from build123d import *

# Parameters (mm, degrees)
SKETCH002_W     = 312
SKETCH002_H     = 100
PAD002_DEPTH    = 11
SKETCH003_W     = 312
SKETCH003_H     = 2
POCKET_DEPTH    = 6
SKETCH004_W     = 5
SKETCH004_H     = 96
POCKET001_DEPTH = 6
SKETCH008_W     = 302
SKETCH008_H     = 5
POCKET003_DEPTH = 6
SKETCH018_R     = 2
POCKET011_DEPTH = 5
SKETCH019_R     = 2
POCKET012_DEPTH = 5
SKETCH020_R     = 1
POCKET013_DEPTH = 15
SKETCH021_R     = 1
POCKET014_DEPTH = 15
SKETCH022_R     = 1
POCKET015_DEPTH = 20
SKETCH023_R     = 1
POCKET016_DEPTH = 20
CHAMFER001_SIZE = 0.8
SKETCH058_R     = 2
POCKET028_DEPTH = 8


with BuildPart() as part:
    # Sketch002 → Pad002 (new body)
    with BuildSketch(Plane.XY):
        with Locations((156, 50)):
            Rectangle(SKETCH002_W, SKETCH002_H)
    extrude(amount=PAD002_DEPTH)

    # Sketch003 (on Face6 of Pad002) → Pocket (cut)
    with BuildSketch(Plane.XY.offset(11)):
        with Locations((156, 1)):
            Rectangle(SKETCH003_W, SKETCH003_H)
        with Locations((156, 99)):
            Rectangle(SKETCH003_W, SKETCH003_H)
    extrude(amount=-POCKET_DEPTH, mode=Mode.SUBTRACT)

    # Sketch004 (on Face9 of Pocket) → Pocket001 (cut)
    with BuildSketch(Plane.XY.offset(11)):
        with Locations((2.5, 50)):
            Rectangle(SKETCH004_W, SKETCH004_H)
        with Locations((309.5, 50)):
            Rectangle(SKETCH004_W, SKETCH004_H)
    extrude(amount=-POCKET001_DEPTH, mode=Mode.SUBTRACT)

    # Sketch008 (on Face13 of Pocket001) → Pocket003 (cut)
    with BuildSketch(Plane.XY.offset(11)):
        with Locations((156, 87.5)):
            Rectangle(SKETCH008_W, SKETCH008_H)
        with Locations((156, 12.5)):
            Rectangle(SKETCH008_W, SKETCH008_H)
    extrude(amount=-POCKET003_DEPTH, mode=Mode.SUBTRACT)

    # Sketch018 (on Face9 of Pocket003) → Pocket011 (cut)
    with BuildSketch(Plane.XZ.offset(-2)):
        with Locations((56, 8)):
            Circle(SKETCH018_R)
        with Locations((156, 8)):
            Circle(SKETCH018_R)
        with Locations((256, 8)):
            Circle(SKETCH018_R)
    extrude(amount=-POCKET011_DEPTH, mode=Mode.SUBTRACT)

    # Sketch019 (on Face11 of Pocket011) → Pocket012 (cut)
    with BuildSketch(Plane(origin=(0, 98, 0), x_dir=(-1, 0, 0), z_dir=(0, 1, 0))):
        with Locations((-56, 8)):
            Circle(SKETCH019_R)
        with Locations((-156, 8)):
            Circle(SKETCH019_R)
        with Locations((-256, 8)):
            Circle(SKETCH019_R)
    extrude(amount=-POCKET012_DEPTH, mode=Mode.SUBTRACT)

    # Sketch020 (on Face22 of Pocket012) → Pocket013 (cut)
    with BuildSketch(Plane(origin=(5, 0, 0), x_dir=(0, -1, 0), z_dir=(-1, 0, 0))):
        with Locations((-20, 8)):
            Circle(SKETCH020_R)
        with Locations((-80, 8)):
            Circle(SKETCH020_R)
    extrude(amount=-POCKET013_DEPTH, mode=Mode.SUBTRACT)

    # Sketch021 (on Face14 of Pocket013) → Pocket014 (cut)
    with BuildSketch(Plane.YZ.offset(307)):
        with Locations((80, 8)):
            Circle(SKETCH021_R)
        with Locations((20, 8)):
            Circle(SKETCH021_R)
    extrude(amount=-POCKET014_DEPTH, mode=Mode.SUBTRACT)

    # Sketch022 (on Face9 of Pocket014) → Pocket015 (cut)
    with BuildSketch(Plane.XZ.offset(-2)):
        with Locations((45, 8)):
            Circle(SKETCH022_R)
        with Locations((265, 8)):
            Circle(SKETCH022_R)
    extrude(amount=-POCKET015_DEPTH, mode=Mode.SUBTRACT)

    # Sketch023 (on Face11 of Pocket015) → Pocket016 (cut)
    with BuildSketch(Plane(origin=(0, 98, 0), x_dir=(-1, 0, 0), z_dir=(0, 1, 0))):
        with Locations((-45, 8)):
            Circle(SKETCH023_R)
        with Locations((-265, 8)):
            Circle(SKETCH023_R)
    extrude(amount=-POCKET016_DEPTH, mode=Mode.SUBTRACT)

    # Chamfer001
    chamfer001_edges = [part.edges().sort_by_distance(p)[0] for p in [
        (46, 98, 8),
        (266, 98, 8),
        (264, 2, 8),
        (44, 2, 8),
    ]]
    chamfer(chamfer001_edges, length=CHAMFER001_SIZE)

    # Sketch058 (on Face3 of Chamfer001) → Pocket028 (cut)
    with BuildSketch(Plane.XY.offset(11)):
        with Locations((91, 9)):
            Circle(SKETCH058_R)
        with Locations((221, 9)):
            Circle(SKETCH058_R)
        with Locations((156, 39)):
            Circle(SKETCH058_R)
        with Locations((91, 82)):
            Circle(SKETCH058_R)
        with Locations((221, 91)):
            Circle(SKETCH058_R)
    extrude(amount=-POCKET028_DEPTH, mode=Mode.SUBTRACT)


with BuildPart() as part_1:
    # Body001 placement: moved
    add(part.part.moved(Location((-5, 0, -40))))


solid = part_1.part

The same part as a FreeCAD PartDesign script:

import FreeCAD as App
import Part
import Sketcher
from FreeCAD import Vector
Q = App.Units.Quantity


def edges_at(feature, points):
    """Names of the edges that pass closest to the given points."""
    edges = feature.Shape.Edges
    near = lambda p: min(range(len(edges)), key=lambda i: edges[i].distToShape(Part.Vertex(*p))[0])
    return sorted({f"Edge{near(p) + 1}" for p in points})

doc = App.newDocument("Part")
body = doc.addObject("PartDesign::Body", "Body")

sketch1 = body.newObject("Sketcher::SketchObject", "Sketch")
sketch1.AttachmentSupport = (doc.getObject("XY_Plane"), [""])
sketch1.MapMode = "FlatFace"
sketch1.addGeometry([
    Part.LineSegment(Vector(0, 100, 0), Vector(0, 0, 0)),
    Part.LineSegment(Vector(0, 0, 0), Vector(312, 0, 0)),
    Part.LineSegment(Vector(312, 0, 0), Vector(312, 100, 0)),
    Part.LineSegment(Vector(312, 100, 0), Vector(0, 100, 0)),
], False)
sketch1.addConstraint([
    Sketcher.Constraint("Coincident", 0, 2, 1, 1),
    Sketcher.Constraint("Coincident", 1, 2, 2, 1),
    Sketcher.Constraint("Coincident", 2, 2, 3, 1),
    Sketcher.Constraint("Coincident", 3, 2, 0, 1),
    Sketcher.Constraint("Vertical", 0),
    Sketcher.Constraint("Horizontal", 1),
    Sketcher.Constraint("Vertical", 2),
    Sketcher.Constraint("Horizontal", 3),
    Sketcher.Constraint("Coincident", 0, 2, -1, 1),
    Sketcher.Constraint("DistanceX", 1, 1, 1, 2, Q("312 mm")),
    Sketcher.Constraint("DistanceY", 0, 2, 0, 1, Q("100 mm")),
])
pad1 = body.newObject("PartDesign::Pad", "Pad")
pad1.Profile = sketch1
pad1.Length = 11

sketch2 = body.newObject("Sketcher::SketchObject", "Sketch001")
sketch2.AttachmentSupport = (doc.getObject("XY_Plane"), [""])
sketch2.MapMode = "FlatFace"
sketch2.AttachmentOffset = App.Placement(Vector(0, 0, 11), App.Rotation())
sketch2.addGeometry([
    Part.LineSegment(Vector(0, 2, 0), Vector(0, 0, 0)),
    Part.LineSegment(Vector(0, 0, 0), Vector(312, 0, 0)),
    Part.LineSegment(Vector(312, 0, 0), Vector(312, 2, 0)),
    Part.LineSegment(Vector(312, 2, 0), Vector(0, 2, 0)),
    Part.LineSegment(Vector(0, 100, 0), Vector(0, 98, 0)),
    Part.LineSegment(Vector(0, 98, 0), Vector(312, 98, 0)),
    Part.LineSegment(Vector(312, 98, 0), Vector(312, 100, 0)),
    Part.LineSegment(Vector(312, 100, 0), Vector(0, 100, 0)),
], False)
sketch2.addConstraint([
    Sketcher.Constraint("Coincident", 0, 2, 1, 1),
    Sketcher.Constraint("Coincident", 1, 2, 2, 1),
    Sketcher.Constraint("Coincident", 2, 2, 3, 1),
    Sketcher.Constraint("Coincident", 3, 2, 0, 1),
    Sketcher.Constraint("Coincident", 4, 2, 5, 1),
    Sketcher.Constraint("Coincident", 5, 2, 6, 1),
    Sketcher.Constraint("Coincident", 6, 2, 7, 1),
    Sketcher.Constraint("Coincident", 7, 2, 4, 1),
    Sketcher.Constraint("Vertical", 0),
    Sketcher.Constraint("Horizontal", 1),
    Sketcher.Constraint("Vertical", 2),
    Sketcher.Constraint("Horizontal", 3),
    Sketcher.Constraint("Vertical", 4),
    Sketcher.Constraint("Horizontal", 5),
    Sketcher.Constraint("Vertical", 6),
    Sketcher.Constraint("Horizontal", 7),
    Sketcher.Constraint("Coincident", 0, 2, -1, 1),
    Sketcher.Constraint("PointOnObject", 4, 2, -2),
    Sketcher.Constraint("Vertical", 2, 2, 5, 2),
    Sketcher.Constraint("Equal", 2, 4),
    Sketcher.Constraint("DistanceX", 1, 1, 1, 2, Q("312 mm")),
    Sketcher.Constraint("DistanceY", 0, 2, 0, 1, Q("2 mm")),
    Sketcher.Constraint("DistanceY", -1, 1, 4, 2, Q("98 mm")),
])
pocket1 = body.newObject("PartDesign::Pocket", "Pocket")
pocket1.Profile = sketch2
pocket1.Length = 6

sketch3 = body.newObject("Sketcher::SketchObject", "Sketch002")
sketch3.AttachmentSupport = (doc.getObject("XY_Plane"), [""])
sketch3.MapMode = "FlatFace"
sketch3.AttachmentOffset = App.Placement(Vector(0, 0, 11), App.Rotation())
sketch3.addGeometry([
    Part.LineSegment(Vector(0, 98, 0), Vector(0, 2, 0)),
    Part.LineSegment(Vector(0, 2, 0), Vector(5, 2, 0)),
    Part.LineSegment(Vector(5, 2, 0), Vector(5, 98, 0)),
    Part.LineSegment(Vector(5, 98, 0), Vector(0, 98, 0)),
    Part.LineSegment(Vector(307, 98, 0), Vector(307, 2, 0)),
    Part.LineSegment(Vector(307, 2, 0), Vector(312, 2, 0)),
    Part.LineSegment(Vector(312, 2, 0), Vector(312, 98, 0)),
    Part.LineSegment(Vector(312, 98, 0), Vector(307, 98, 0)),
], False)
sketch3.addConstraint([
    Sketcher.Constraint("Coincident", 0, 2, 1, 1),
    Sketcher.Constraint("Coincident", 1, 2, 2, 1),
    Sketcher.Constraint("Coincident", 2, 2, 3, 1),
    Sketcher.Constraint("Coincident", 3, 2, 0, 1),
    Sketcher.Constraint("Coincident", 4, 2, 5, 1),
    Sketcher.Constraint("Coincident", 5, 2, 6, 1),
    Sketcher.Constraint("Coincident", 6, 2, 7, 1),
    Sketcher.Constraint("Coincident", 7, 2, 4, 1),
    Sketcher.Constraint("Vertical", 0),
    Sketcher.Constraint("Horizontal", 1),
    Sketcher.Constraint("Vertical", 2),
    Sketcher.Constraint("Horizontal", 3),
    Sketcher.Constraint("Vertical", 4),
    Sketcher.Constraint("Horizontal", 5),
    Sketcher.Constraint("Vertical", 6),
    Sketcher.Constraint("Horizontal", 7),
    Sketcher.Constraint("PointOnObject", 0, 2, -2),
    Sketcher.Constraint("Horizontal", 1, 2, 4, 2),
    Sketcher.Constraint("Horizontal", 3, 2, 6, 2),
    Sketcher.Constraint("Equal", 3, 5),
    Sketcher.Constraint("DistanceX", 1, 1, 1, 2, Q("5 mm")),
    Sketcher.Constraint("DistanceY", 0, 2, 0, 1, Q("96 mm")),
    Sketcher.Constraint("DistanceY", -1, 1, 0, 2, Q("2 mm")),
    Sketcher.Constraint("DistanceX", -1, 1, 4, 2, Q("307 mm")),
])
pocket2 = body.newObject("PartDesign::Pocket", "Pocket001")
pocket2.Profile = sketch3
pocket2.Length = 6

sketch4 = body.newObject("Sketcher::SketchObject", "Sketch003")
sketch4.AttachmentSupport = (doc.getObject("XY_Plane"), [""])
sketch4.MapMode = "FlatFace"
sketch4.AttachmentOffset = App.Placement(Vector(0, 0, 11), App.Rotation())
sketch4.addGeometry([
    Part.LineSegment(Vector(5, 90, 0), Vector(5, 85, 0)),
    Part.LineSegment(Vector(5, 85, 0), Vector(307, 85, 0)),
    Part.LineSegment(Vector(307, 85, 0), Vector(307, 90, 0)),
    Part.LineSegment(Vector(307, 90, 0), Vector(5, 90, 0)),
    Part.LineSegment(Vector(5, 15, 0), Vector(5, 10, 0)),
    Part.LineSegment(Vector(5, 10, 0), Vector(307, 10, 0)),
    Part.LineSegment(Vector(307, 10, 0), Vector(307, 15, 0)),
    Part.LineSegment(Vector(307, 15, 0), Vector(5, 15, 0)),
], False)
sketch4.addConstraint([
    Sketcher.Constraint("Coincident", 0, 2, 1, 1),
    Sketcher.Constraint("Coincident", 1, 2, 2, 1),
    Sketcher.Constraint("Coincident", 2, 2, 3, 1),
    Sketcher.Constraint("Coincident", 3, 2, 0, 1),
    Sketcher.Constraint("Coincident", 4, 2, 5, 1),
    Sketcher.Constraint("Coincident", 5, 2, 6, 1),
    Sketcher.Constraint("Coincident", 6, 2, 7, 1),
    Sketcher.Constraint("Coincident", 7, 2, 4, 1),
    Sketcher.Constraint("Vertical", 0),
    Sketcher.Constraint("Horizontal", 1),
    Sketcher.Constraint("Vertical", 2),
    Sketcher.Constraint("Horizontal", 3),
    Sketcher.Constraint("Vertical", 4),
    Sketcher.Constraint("Horizontal", 5),
    Sketcher.Constraint("Vertical", 6),
    Sketcher.Constraint("Horizontal", 7),
    Sketcher.Constraint("Vertical", 3, 2, 4, 2),
    Sketcher.Constraint("Vertical", 2, 2, 5, 2),
    Sketcher.Constraint("Equal", 2, 4),
    Sketcher.Constraint("DistanceX", 1, 1, 1, 2, Q("302 mm")),
    Sketcher.Constraint("DistanceY", 0, 2, 0, 1, Q("5 mm")),
    Sketcher.Constraint("DistanceX", -1, 1, 0, 2, Q("5 mm")),
    Sketcher.Constraint("DistanceY", -1, 1, 0, 2, Q("85 mm")),
    Sketcher.Constraint("DistanceY", -1, 1, 4, 2, Q("10 mm")),
])
pocket3 = body.newObject("PartDesign::Pocket", "Pocket002")
pocket3.Profile = sketch4
pocket3.Length = 6

sketch5 = body.newObject("Sketcher::SketchObject", "Sketch004")
sketch5.AttachmentSupport = (doc.getObject("XZ_Plane"), [""])
sketch5.MapMode = "FlatFace"
sketch5.AttachmentOffset = App.Placement(Vector(0, 0, -2), App.Rotation())
sketch5.addGeometry([
    Part.Circle(Vector(56, 8, 0), Vector(0, 0, 1), 2),
    Part.Circle(Vector(156, 8, 0), Vector(0, 0, 1), 2),
    Part.Circle(Vector(256, 8, 0), Vector(0, 0, 1), 2),
], False)
sketch5.addConstraint([
    Sketcher.Constraint("Equal", 0, 1),
    Sketcher.Constraint("Equal", 1, 2),
    Sketcher.Constraint("Horizontal", 0, 3, 1, 3),
    Sketcher.Constraint("Horizontal", 1, 3, 2, 3),
    Sketcher.Constraint("Diameter", 0, Q("4 mm")),
    Sketcher.Constraint("DistanceX", -1, 1, 0, 3, Q("56 mm")),
    Sketcher.Constraint("DistanceY", -1, 1, 0, 3, Q("8 mm")),
    Sketcher.Constraint("DistanceX", -1, 1, 1, 3, Q("156 mm")),
    Sketcher.Constraint("DistanceX", -1, 1, 2, 3, Q("256 mm")),
])
pocket4 = body.newObject("PartDesign::Pocket", "Pocket003")
pocket4.Profile = sketch5
pocket4.Length = 5

sketch6 = body.newObject("Sketcher::SketchObject", "Sketch005")
sketch6.AttachmentSupport = (doc.getObject("XZ_Plane"), [""])
sketch6.MapMode = "FlatFace"
sketch6.AttachmentOffset = App.Placement(Vector(0, 0, -98), App.Rotation())
sketch6.addGeometry([
    Part.Circle(Vector(56, 8, 0), Vector(0, 0, 1), 2),
    Part.Circle(Vector(156, 8, 0), Vector(0, 0, 1), 2),
    Part.Circle(Vector(256, 8, 0), Vector(0, 0, 1), 2),
], False)
sketch6.addConstraint([
    Sketcher.Constraint("Equal", 0, 1),
    Sketcher.Constraint("Equal", 1, 2),
    Sketcher.Constraint("Horizontal", 0, 3, 1, 3),
    Sketcher.Constraint("Horizontal", 1, 3, 2, 3),
    Sketcher.Constraint("Diameter", 0, Q("4 mm")),
    Sketcher.Constraint("DistanceX", -1, 1, 0, 3, Q("56 mm")),
    Sketcher.Constraint("DistanceY", -1, 1, 0, 3, Q("8 mm")),
    Sketcher.Constraint("DistanceX", -1, 1, 1, 3, Q("156 mm")),
    Sketcher.Constraint("DistanceX", -1, 1, 2, 3, Q("256 mm")),
])
pocket5 = body.newObject("PartDesign::Pocket", "Pocket004")
pocket5.Profile = sketch6
pocket5.Length = 5
pocket5.Reversed = True

sketch7 = body.newObject("Sketcher::SketchObject", "Sketch006")
sketch7.AttachmentSupport = (doc.getObject("YZ_Plane"), [""])
sketch7.MapMode = "FlatFace"
sketch7.AttachmentOffset = App.Placement(Vector(0, 0, 5), App.Rotation())
sketch7.addGeometry([
    Part.Circle(Vector(20, 8, 0), Vector(0, 0, 1), 1),
    Part.Circle(Vector(80, 8, 0), Vector(0, 0, 1), 1),
], False)
sketch7.addConstraint([
    Sketcher.Constraint("Equal", 0, 1),
    Sketcher.Constraint("Horizontal", 0, 3, 1, 3),
    Sketcher.Constraint("Diameter", 0, Q("2 mm")),
    Sketcher.Constraint("DistanceX", -1, 1, 0, 3, Q("20 mm")),
    Sketcher.Constraint("DistanceY", -1, 1, 0, 3, Q("8 mm")),
    Sketcher.Constraint("DistanceX", -1, 1, 1, 3, Q("80 mm")),
])
pocket6 = body.newObject("PartDesign::Pocket", "Pocket005")
pocket6.Profile = sketch7
pocket6.Length = 15
pocket6.Reversed = True

sketch8 = body.newObject("Sketcher::SketchObject", "Sketch007")
sketch8.AttachmentSupport = (doc.getObject("YZ_Plane"), [""])
sketch8.MapMode = "FlatFace"
sketch8.AttachmentOffset = App.Placement(Vector(0, 0, 307), App.Rotation())
sketch8.addGeometry([
    Part.Circle(Vector(80, 8, 0), Vector(0, 0, 1), 1),
    Part.Circle(Vector(20, 8, 0), Vector(0, 0, 1), 1),
], False)
sketch8.addConstraint([
    Sketcher.Constraint("Equal", 0, 1),
    Sketcher.Constraint("Horizontal", 0, 3, 1, 3),
    Sketcher.Constraint("Diameter", 0, Q("2 mm")),
    Sketcher.Constraint("DistanceX", -1, 1, 0, 3, Q("80 mm")),
    Sketcher.Constraint("DistanceY", -1, 1, 0, 3, Q("8 mm")),
    Sketcher.Constraint("DistanceX", -1, 1, 1, 3, Q("20 mm")),
])
pocket7 = body.newObject("PartDesign::Pocket", "Pocket006")
pocket7.Profile = sketch8
pocket7.Length = 15

sketch9 = body.newObject("Sketcher::SketchObject", "Sketch008")
sketch9.AttachmentSupport = (doc.getObject("XZ_Plane"), [""])
sketch9.MapMode = "FlatFace"
sketch9.AttachmentOffset = App.Placement(Vector(0, 0, -2), App.Rotation())
sketch9.addGeometry([
    Part.Circle(Vector(45, 8, 0), Vector(0, 0, 1), 1),
    Part.Circle(Vector(265, 8, 0), Vector(0, 0, 1), 1),
], False)
sketch9.addConstraint([
    Sketcher.Constraint("Equal", 0, 1),
    Sketcher.Constraint("Horizontal", 0, 3, 1, 3),
    Sketcher.Constraint("Diameter", 0, Q("2 mm")),
    Sketcher.Constraint("DistanceX", -1, 1, 0, 3, Q("45 mm")),
    Sketcher.Constraint("DistanceY", -1, 1, 0, 3, Q("8 mm")),
    Sketcher.Constraint("DistanceX", -1, 1, 1, 3, Q("265 mm")),
])
pocket8 = body.newObject("PartDesign::Pocket", "Pocket007")
pocket8.Profile = sketch9
pocket8.Length = 20

sketch10 = body.newObject("Sketcher::SketchObject", "Sketch009")
sketch10.AttachmentSupport = (doc.getObject("XZ_Plane"), [""])
sketch10.MapMode = "FlatFace"
sketch10.AttachmentOffset = App.Placement(Vector(0, 0, -98), App.Rotation())
sketch10.addGeometry([
    Part.Circle(Vector(45, 8, 0), Vector(0, 0, 1), 1),
    Part.Circle(Vector(265, 8, 0), Vector(0, 0, 1), 1),
], False)
sketch10.addConstraint([
    Sketcher.Constraint("Equal", 0, 1),
    Sketcher.Constraint("Horizontal", 0, 3, 1, 3),
    Sketcher.Constraint("Diameter", 0, Q("2 mm")),
    Sketcher.Constraint("DistanceX", -1, 1, 0, 3, Q("45 mm")),
    Sketcher.Constraint("DistanceY", -1, 1, 0, 3, Q("8 mm")),
    Sketcher.Constraint("DistanceX", -1, 1, 1, 3, Q("265 mm")),
])
pocket9 = body.newObject("PartDesign::Pocket", "Pocket008")
pocket9.Profile = sketch10
pocket9.Length = 20
pocket9.Reversed = True
doc.recompute()

chamfer = body.newObject("PartDesign::Chamfer", "Chamfer")
chamfer.Base = (pocket9, edges_at(pocket9, [
    (46, 98, 8),
    (266, 98, 8),
    (264, 2, 8),
    (44, 2, 8),
]))
chamfer.Size = 0.8

sketch11 = body.newObject("Sketcher::SketchObject", "Sketch010")
sketch11.AttachmentSupport = (doc.getObject("XY_Plane"), [""])
sketch11.MapMode = "FlatFace"
sketch11.AttachmentOffset = App.Placement(Vector(0, 0, 11), App.Rotation())
sketch11.addGeometry([
    Part.Circle(Vector(91, 9, 0), Vector(0, 0, 1), 2),
    Part.Circle(Vector(221, 9, 0), Vector(0, 0, 1), 2),
    Part.Circle(Vector(156, 39, 0), Vector(0, 0, 1), 2),
    Part.Circle(Vector(91, 82, 0), Vector(0, 0, 1), 2),
    Part.Circle(Vector(221, 91, 0), Vector(0, 0, 1), 2),
], False)
sketch11.addConstraint([
    Sketcher.Constraint("Equal", 0, 1),
    Sketcher.Constraint("Equal", 1, 2),
    Sketcher.Constraint("Equal", 2, 3),
    Sketcher.Constraint("Equal", 3, 4),
    Sketcher.Constraint("Horizontal", 0, 3, 1, 3),
    Sketcher.Constraint("Vertical", 0, 3, 3, 3),
    Sketcher.Constraint("Vertical", 1, 3, 4, 3),
    Sketcher.Constraint("Diameter", 0, Q("4 mm")),
    Sketcher.Constraint("DistanceX", -1, 1, 0, 3, Q("91 mm")),
    Sketcher.Constraint("DistanceY", -1, 1, 0, 3, Q("9 mm")),
    Sketcher.Constraint("DistanceX", -1, 1, 1, 3, Q("221 mm")),
    Sketcher.Constraint("DistanceX", -1, 1, 2, 3, Q("156 mm")),
    Sketcher.Constraint("DistanceY", -1, 1, 2, 3, Q("39 mm")),
    Sketcher.Constraint("DistanceY", -1, 1, 3, 3, Q("82 mm")),
    Sketcher.Constraint("DistanceY", -1, 1, 4, 3, Q("91 mm")),
])
pocket10 = body.newObject("PartDesign::Pocket", "Pocket009")
pocket10.Profile = sketch11
pocket10.Length = 8
body2 = doc.addObject("PartDesign::Body", "Body001")
doc.recompute()

body.Placement = App.Placement(Vector(-5, 0, -40), App.Rotation(Vector(0, 0, 1), 0))
boolean = body2.newObject("PartDesign::Boolean", "Boolean")
boolean.Type = "Fuse"
boolean.addObjects([body])

doc.recompute()
